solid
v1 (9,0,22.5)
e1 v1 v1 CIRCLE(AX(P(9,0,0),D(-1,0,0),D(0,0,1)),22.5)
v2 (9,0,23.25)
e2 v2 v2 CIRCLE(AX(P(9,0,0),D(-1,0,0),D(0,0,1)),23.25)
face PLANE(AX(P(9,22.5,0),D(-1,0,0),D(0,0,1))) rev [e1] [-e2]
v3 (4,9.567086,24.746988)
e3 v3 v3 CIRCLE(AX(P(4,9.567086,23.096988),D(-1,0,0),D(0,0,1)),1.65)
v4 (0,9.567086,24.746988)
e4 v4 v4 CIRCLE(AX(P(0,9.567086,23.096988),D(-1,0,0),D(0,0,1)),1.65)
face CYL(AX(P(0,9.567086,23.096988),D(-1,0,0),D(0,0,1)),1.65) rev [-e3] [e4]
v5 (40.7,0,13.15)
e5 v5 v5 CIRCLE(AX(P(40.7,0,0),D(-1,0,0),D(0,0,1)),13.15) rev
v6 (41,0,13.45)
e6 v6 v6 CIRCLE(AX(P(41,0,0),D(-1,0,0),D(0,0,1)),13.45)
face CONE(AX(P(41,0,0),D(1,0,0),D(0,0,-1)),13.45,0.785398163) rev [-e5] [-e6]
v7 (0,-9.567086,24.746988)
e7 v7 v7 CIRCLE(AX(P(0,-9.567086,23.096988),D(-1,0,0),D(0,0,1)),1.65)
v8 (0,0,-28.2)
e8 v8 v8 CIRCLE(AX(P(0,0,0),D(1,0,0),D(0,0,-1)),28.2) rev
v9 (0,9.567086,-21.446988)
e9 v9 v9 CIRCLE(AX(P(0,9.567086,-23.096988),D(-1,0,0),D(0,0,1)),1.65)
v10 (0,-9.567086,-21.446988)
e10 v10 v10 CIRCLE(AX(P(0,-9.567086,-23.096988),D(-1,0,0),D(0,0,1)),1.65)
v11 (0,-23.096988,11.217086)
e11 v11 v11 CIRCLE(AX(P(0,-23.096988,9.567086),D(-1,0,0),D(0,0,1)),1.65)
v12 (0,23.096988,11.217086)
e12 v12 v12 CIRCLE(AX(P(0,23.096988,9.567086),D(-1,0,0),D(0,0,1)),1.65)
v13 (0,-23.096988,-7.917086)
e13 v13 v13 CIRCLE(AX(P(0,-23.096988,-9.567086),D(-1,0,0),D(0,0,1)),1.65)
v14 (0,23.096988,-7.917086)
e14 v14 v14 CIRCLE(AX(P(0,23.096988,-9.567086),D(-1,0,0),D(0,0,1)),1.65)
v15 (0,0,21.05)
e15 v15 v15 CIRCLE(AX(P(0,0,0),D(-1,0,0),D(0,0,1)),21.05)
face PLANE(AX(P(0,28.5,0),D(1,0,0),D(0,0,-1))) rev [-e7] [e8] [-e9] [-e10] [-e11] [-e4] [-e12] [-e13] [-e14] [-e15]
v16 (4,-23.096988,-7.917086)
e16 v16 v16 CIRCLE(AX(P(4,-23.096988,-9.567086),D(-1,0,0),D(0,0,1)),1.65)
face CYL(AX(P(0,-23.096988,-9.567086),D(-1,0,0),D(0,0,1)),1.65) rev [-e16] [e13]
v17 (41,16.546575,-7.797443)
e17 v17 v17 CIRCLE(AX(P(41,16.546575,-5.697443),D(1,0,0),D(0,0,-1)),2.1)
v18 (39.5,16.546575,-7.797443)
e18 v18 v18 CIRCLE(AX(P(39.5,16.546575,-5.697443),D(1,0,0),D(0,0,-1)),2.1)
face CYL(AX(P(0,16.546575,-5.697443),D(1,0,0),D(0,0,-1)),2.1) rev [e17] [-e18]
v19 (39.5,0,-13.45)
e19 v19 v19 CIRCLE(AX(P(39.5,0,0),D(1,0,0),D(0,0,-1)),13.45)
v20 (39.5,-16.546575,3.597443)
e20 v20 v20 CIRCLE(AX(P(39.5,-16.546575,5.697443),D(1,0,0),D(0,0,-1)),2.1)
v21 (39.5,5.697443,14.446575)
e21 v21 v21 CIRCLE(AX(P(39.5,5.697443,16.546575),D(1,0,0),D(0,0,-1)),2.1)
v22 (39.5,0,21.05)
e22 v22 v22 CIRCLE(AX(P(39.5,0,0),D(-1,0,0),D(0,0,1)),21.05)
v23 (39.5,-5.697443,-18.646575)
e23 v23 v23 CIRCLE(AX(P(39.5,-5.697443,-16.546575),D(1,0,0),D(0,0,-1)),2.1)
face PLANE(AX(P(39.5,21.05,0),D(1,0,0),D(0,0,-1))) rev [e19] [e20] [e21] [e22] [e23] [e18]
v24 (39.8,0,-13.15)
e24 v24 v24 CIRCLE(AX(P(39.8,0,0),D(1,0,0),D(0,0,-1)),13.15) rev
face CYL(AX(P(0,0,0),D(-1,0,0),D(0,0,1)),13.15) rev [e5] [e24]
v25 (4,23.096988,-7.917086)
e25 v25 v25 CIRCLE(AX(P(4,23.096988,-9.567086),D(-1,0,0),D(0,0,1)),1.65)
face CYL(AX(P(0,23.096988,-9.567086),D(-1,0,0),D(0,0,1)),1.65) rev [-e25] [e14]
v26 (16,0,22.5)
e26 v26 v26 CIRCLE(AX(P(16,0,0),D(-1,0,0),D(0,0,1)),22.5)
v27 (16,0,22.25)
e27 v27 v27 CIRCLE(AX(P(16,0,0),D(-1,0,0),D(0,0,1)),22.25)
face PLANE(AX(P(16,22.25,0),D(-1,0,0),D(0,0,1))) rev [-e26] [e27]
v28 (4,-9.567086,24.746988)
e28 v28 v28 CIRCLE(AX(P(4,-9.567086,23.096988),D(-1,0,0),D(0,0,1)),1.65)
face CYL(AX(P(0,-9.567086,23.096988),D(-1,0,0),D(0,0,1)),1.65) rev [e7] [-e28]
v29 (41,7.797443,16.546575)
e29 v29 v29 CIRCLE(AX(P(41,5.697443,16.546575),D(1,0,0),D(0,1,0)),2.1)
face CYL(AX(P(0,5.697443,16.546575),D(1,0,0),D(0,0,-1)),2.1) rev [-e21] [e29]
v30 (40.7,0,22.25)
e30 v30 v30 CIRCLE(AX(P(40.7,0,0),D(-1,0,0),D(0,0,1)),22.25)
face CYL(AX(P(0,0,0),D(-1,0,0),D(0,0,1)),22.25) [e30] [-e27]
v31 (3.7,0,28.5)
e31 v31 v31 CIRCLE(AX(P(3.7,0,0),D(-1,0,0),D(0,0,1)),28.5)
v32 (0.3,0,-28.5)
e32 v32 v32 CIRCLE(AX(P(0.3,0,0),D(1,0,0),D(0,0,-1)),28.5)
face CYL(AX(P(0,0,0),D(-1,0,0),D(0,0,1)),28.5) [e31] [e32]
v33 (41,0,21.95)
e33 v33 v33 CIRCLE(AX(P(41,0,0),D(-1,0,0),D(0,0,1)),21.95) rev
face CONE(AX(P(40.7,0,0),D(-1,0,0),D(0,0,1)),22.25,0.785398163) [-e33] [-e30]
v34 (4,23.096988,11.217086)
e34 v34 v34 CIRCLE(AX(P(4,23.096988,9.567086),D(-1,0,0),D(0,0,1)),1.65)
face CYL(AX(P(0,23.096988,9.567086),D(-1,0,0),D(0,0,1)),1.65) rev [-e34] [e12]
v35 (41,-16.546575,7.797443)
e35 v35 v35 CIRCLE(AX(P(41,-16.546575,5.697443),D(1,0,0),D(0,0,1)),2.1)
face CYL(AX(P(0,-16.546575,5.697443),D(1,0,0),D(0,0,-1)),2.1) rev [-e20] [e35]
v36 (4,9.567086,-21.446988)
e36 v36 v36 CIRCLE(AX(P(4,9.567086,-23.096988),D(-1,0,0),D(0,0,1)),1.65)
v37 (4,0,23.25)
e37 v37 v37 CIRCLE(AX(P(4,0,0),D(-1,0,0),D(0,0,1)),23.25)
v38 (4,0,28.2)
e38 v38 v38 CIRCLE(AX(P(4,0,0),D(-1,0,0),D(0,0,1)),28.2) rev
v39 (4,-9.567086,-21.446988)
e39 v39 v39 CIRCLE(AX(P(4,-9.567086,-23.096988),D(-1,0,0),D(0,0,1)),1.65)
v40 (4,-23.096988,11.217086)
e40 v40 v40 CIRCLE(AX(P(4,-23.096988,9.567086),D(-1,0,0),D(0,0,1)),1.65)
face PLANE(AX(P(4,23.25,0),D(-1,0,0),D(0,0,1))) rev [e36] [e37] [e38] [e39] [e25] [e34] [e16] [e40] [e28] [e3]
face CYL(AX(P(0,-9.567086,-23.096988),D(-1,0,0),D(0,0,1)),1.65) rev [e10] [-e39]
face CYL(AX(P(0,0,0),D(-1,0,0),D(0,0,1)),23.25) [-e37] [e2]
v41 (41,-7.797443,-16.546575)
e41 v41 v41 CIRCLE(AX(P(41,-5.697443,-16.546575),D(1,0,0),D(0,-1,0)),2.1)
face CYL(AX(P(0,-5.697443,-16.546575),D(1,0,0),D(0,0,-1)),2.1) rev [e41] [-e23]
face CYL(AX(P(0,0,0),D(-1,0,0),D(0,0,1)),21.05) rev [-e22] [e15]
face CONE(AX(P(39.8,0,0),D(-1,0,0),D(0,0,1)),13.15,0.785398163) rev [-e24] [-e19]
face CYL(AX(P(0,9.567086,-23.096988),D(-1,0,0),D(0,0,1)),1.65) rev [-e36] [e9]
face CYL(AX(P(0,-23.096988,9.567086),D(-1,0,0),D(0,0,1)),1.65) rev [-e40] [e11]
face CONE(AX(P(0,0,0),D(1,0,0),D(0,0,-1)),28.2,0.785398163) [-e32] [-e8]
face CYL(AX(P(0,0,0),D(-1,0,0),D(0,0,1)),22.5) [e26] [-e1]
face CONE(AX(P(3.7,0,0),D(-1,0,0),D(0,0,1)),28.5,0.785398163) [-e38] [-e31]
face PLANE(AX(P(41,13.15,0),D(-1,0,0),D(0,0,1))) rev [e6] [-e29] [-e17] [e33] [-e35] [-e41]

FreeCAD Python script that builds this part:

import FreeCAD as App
import Part
import Sketcher
Q = App.Units.Quantity


def edges_at(feature, points):
    """Names of the edges that pass closest to the given points."""
    edges = feature.Shape.Edges
    near = lambda p: min(range(len(edges)), key=lambda i: edges[i].distToShape(Part.Vertex(*p))[0])
    return sorted({f"Edge{near(p) + 1}" for p in points})

doc = App.newDocument("Part")
params = doc.addObject("Spreadsheet::Sheet", "Params")
for row, (alias, value) in enumerate([
    ("sketch1_width", "25 mm"),
    ("sketch1_width2", "7 mm"),
    ("sketch1_width3", "5 mm"),
    ("sketch1_width4", "4 mm"),
    ("sketch1_width5", "39.5 mm"),
    ("revolution_angle", "360 deg"),
    ("chamfer_size", "0.3 mm"),
    ("sketch2_diameter", "4.2 mm"),
    ("pocket1_length", "116.986956 mm"),
    ("sketch3_diameter", "3.3 mm"),
    ("hole_diameter", "3.3 mm"),
], start=1):
    params.set(f"A{row}", alias)
    params.set(f"B{row}", "=" + value)
    params.setAlias(f"B{row}", alias)

body = doc.addObject("PartDesign::Body", "Body")

# Sketch on XY plane
sketch1 = body.newObject("Sketcher::SketchObject", "Sketch")
sketch1.AttachmentSupport = (doc.getObject("XY_Plane"), [""])
sketch1.MapMode = "FlatFace"
sketch1.addGeometry(Part.LineSegment(App.Vector(0, 28.5, 0), App.Vector(0, 21.05, 0)), False)
sketch1.addGeometry(Part.LineSegment(App.Vector(0, 21.05, 0), App.Vector(39.5, 21.05, 0)), False)
sketch1.addGeometry(Part.LineSegment(App.Vector(39.5, 21.05, 0), App.Vector(39.5, 13.15, 0)), False)
sketch1.addGeometry(Part.LineSegment(App.Vector(39.5, 13.15, 0), App.Vector(41, 13.15, 0)), False)
sketch1.addGeometry(Part.LineSegment(App.Vector(41, 13.15, 0), App.Vector(41, 22.25, 0)), False)
sketch1.addGeometry(Part.LineSegment(App.Vector(41, 22.25, 0), App.Vector(16, 22.25, 0)), False)
sketch1.addGeometry(Part.LineSegment(App.Vector(16, 22.25, 0), App.Vector(16, 22.5, 0)), False)
sketch1.addGeometry(Part.LineSegment(App.Vector(16, 22.5, 0), App.Vector(9, 22.5, 0)), False)
sketch1.addGeometry(Part.LineSegment(App.Vector(9, 22.5, 0), App.Vector(9, 23.25, 0)), False)
sketch1.addGeometry(Part.LineSegment(App.Vector(9, 23.25, 0), App.Vector(4, 23.25, 0)), False)
sketch1.addGeometry(Part.LineSegment(App.Vector(4, 23.25, 0), App.Vector(4, 28.5, 0)), False)
sketch1.addGeometry(Part.LineSegment(App.Vector(4, 28.5, 0), App.Vector(0, 28.5, 0)), False)
sketch1.addConstraint(Sketcher.Constraint("Coincident", 0, 2, 1, 1))
sketch1.addConstraint(Sketcher.Constraint("Coincident", 1, 2, 2, 1))
sketch1.addConstraint(Sketcher.Constraint("Coincident", 2, 2, 3, 1))
sketch1.addConstraint(Sketcher.Constraint("Coincident", 3, 2, 4, 1))
sketch1.addConstraint(Sketcher.Constraint("Coincident", 4, 2, 5, 1))
sketch1.addConstraint(Sketcher.Constraint("Coincident", 5, 2, 6, 1))
sketch1.addConstraint(Sketcher.Constraint("Coincident", 6, 2, 7, 1))
sketch1.addConstraint(Sketcher.Constraint("Coincident", 7, 2, 8, 1))
sketch1.addConstraint(Sketcher.Constraint("Coincident", 8, 2, 9, 1))
sketch1.addConstraint(Sketcher.Constraint("Coincident", 9, 2, 10, 1))
sketch1.addConstraint(Sketcher.Constraint("Coincident", 10, 2, 11, 1))
sketch1.addConstraint(Sketcher.Constraint("Coincident", 11, 2, 0, 1))
sketch1.addConstraint(Sketcher.Constraint("Vertical", 0))
sketch1.addConstraint(Sketcher.Constraint("Horizontal", 1))
sketch1.addConstraint(Sketcher.Constraint("Vertical", 2))
sketch1.addConstraint(Sketcher.Constraint("Horizontal", 3))
sketch1.addConstraint(Sketcher.Constraint("Vertical", 4))
sketch1.addConstraint(Sketcher.Constraint("Horizontal", 5))
sketch1.addConstraint(Sketcher.Constraint("Vertical", 6))
sketch1.addConstraint(Sketcher.Constraint("Horizontal", 7))
sketch1.addConstraint(Sketcher.Constraint("Vertical", 8))
sketch1.addConstraint(Sketcher.Constraint("Horizontal", 9))
sketch1.addConstraint(Sketcher.Constraint("Vertical", 10))
sketch1.addConstraint(Sketcher.Constraint("Horizontal", 11))
sketch1.addConstraint(Sketcher.Constraint("PointOnObject", 0, 2, -2))
sketch1.addConstraint(Sketcher.Constraint("DistanceX", 5, 2, 5, 1, Q("25 mm")))
sketch1.addConstraint(Sketcher.Constraint("DistanceX", 7, 2, 7, 1, Q("7 mm")))
sketch1.addConstraint(Sketcher.Constraint("DistanceX", 9, 2, 9, 1, Q("5 mm")))
sketch1.addConstraint(Sketcher.Constraint("DistanceX", 11, 2, 11, 1, Q("4 mm")))
sketch1.addConstraint(Sketcher.Constraint("DistanceX", 1, 1, 1, 2, Q("39.5 mm")))
sketch1.addConstraint(Sketcher.Constraint("DistanceY", 2, 2, 2, 1, Q("7.9 mm")))
sketch1.addConstraint(Sketcher.Constraint("DistanceY", 4, 1, 4, 2, Q("9.1 mm")))
sketch1.addConstraint(Sketcher.Constraint("DistanceY", 5, 2, 8, 2, Q("1 mm")))
sketch1.addConstraint(Sketcher.Constraint("DistanceY", 7, 2, 10, 2, Q("6 mm")))
sketch1.addConstraint(Sketcher.Constraint("DistanceY", 0, 2, 0, 1, Q("7.45 mm")))
sketch1.addConstraint(Sketcher.Constraint("DistanceY", -1, 1, 6, 2, Q("22.5 mm")))
sketch1.setExpression("Constraints[25]", "Params.sketch1_width")
sketch1.setExpression("Constraints[26]", "Params.sketch1_width2")
sketch1.setExpression("Constraints[27]", "Params.sketch1_width3")
sketch1.setExpression("Constraints[28]", "Params.sketch1_width4")
sketch1.setExpression("Constraints[29]", "Params.sketch1_width5")
revolution = body.newObject("PartDesign::Revolution", "Revolution")
revolution.Profile = sketch1
revolution.ReferenceAxis = (sketch1, ["H_Axis"])
revolution.setExpression("Angle", "Params.revolution_angle")
doc.recompute()

chamfer = body.newObject("PartDesign::Chamfer", "Chamfer")
chamfer.Base = (revolution, edges_at(revolution, [
    (41, 0, -13.15),
    (41, 0, -22.25),
    (4, 0, -28.5),
    (0, 0, -28.5),
    (39.5, 0, -13.15),
]))
chamfer.setExpression("Size", "Params.chamfer_size")

# Sketch on YZ plane
sketch2 = body.newObject("Sketcher::SketchObject", "Sketch001")
sketch2.AttachmentSupport = (doc.getObject("YZ_Plane"), [""])
sketch2.MapMode = "FlatFace"
sketch2.AttachmentOffset = App.Placement(App.Vector(0, 0, 41), App.Rotation())
sketch2.addGeometry(Part.Circle(App.Vector(16.546575, -5.697443, 0), App.Vector(0, 0, 1), 2.1), False)
sketch2.addConstraint(Sketcher.Constraint("Diameter", 0, Q("4.2 mm")))
sketch2.addConstraint(Sketcher.Constraint("DistanceX", -1, 1, 0, 3, Q("16.546575 mm")))
sketch2.addConstraint(Sketcher.Constraint("DistanceY", 0, 3, -1, 1, Q("5.697443 mm")))
sketch2.setExpression("Constraints[0]", "Params.sketch2_diameter")
pocket1 = body.newObject("PartDesign::Pocket", "Pocket")
pocket1.Profile = sketch2
pocket1.setExpression("Length", "Params.pocket1_length")
pocket1.Midplane = True
doc.recompute()

polarpattern = body.newObject("PartDesign::PolarPattern", "PolarPattern")
polarpattern.Originals = [pocket1]
polarpattern.Axis = (doc.getObject("X_Axis"), [""])
polarpattern.Angle = 360
polarpattern.Occurrences = 4
body.Tip = polarpattern

# Sketch on YZ plane
sketch3 = body.newObject("Sketcher::SketchObject", "Sketch002")
sketch3.AttachmentSupport = (doc.getObject("YZ_Plane"), [""])
sketch3.MapMode = "FlatFace"
sketch3.addGeometry(Part.Circle(App.Vector(-23.096988, -9.567086, 0), App.Vector(0, 0, 1), 1.65), False)
sketch3.addConstraint(Sketcher.Constraint("Diameter", 0, Q("3.3 mm")))
sketch3.addConstraint(Sketcher.Constraint("DistanceX", 0, 3, -1, 1, Q("23.096988 mm")))
sketch3.addConstraint(Sketcher.Constraint("DistanceY", 0, 3, -1, 1, Q("9.567086 mm")))
sketch3.setExpression("Constraints[0]", "Params.sketch3_diameter")
doc.recompute()
hole = body.newObject("PartDesign::Hole", "Hole")
hole.Profile = sketch3
hole.ThreadType = "None"
hole.setExpression("Diameter", "Params.hole_diameter")
hole.DepthType = "ThroughAll"
hole.Reversed = True
doc.recompute()

polarpattern2 = body.newObject("PartDesign::PolarPattern", "PolarPattern001")
polarpattern2.Originals = [hole]
polarpattern2.Axis = (doc.getObject("X_Axis"), [""])
polarpattern2.Angle = 360
polarpattern2.Occurrences = 8
body.Tip = polarpattern2

doc.recompute()
